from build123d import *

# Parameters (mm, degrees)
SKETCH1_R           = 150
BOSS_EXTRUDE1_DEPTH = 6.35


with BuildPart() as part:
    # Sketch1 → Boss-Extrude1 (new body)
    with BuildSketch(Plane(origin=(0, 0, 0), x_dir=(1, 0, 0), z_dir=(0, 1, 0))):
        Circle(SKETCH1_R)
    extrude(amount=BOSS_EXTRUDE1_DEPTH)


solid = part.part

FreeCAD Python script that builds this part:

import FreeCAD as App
import Part
import Sketcher
from FreeCAD import Vector

doc = App.newDocument("Part")
params = doc.addObject("Spreadsheet::Sheet", "Params")
for row, (alias, value) in enumerate([
    ("sketch1_diameter", "300 mm"),
    ("pad1_length", "6.35 mm"),
], start=1):
    params.set(f"A{row}", alias)
    params.set(f"B{row}", "=" + value)
    params.setAlias(f"B{row}", alias)

body = doc.addObject("PartDesign::Body", "Body")

# Sketch on XZ plane
sketch1 = doc.addObject("Sketcher::SketchObject", "Sketch")
body.addObject(sketch1)
sketch1.AttachmentSupport = (doc.XZ_Plane, [""])
sketch1.MapMode = "FlatFace"
sketch1.addGeometry(Part.Circle(Vector(0, 0, 0), Vector(0, 0, 1), 150), False)
sketch1.addConstraint(Sketcher.Constraint("Coincident", 0, 3, -1, 1))
sketch1.addConstraint(Sketcher.Constraint("Diameter", 0, 300.0))
sketch1.setExpression("Constraints[1]", "Params.sketch1_diameter")
pad1 = doc.addObject("PartDesign::Pad", "Pad")
body.addObject(pad1)
pad1.Profile = sketch1
pad1.setExpression("Length", "Params.pad1_length")
pad1.Reversed = True

doc.recompute()
